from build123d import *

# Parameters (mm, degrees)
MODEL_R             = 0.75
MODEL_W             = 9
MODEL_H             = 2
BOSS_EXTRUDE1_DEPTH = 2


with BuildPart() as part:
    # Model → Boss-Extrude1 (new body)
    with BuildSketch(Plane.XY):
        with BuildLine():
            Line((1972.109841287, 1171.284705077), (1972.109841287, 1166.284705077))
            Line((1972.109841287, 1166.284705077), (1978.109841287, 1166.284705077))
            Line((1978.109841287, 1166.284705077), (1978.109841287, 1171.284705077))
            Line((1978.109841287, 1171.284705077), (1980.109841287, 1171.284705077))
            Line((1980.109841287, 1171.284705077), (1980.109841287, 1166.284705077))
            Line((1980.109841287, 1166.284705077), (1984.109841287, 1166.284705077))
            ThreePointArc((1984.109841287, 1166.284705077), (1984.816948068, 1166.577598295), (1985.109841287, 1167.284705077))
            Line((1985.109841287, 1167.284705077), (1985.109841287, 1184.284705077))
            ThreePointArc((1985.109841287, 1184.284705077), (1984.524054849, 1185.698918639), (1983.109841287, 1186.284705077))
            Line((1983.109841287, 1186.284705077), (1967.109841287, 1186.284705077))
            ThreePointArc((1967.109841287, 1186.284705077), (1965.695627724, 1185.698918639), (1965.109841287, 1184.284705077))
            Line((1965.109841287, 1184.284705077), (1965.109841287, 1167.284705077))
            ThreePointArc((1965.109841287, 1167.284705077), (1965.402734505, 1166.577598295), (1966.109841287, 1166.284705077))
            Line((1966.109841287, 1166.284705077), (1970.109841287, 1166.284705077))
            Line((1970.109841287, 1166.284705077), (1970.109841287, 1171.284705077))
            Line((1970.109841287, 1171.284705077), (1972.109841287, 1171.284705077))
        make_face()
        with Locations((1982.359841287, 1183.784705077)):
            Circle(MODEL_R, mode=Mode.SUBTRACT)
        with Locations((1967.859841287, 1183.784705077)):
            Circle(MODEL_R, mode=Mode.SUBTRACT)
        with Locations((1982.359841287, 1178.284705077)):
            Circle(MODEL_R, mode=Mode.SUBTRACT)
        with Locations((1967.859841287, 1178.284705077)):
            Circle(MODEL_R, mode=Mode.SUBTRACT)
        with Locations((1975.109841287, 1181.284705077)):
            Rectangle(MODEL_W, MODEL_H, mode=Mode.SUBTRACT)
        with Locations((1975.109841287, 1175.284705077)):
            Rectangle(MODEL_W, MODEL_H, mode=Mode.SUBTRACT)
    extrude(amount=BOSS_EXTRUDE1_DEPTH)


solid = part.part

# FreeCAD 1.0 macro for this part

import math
import FreeCAD as App
import Part
import Sketcher

V = App.Vector
Q = App.Units.Quantity


def add_polygon(sketch, points):
    """Adds a closed chain of lines whose ends are joined by coincident constraints."""
    first, n = sketch.GeometryCount, len(points)
    for a, b in zip(points, points[1:] + points[:1]):
        sketch.addGeometry(Part.LineSegment(App.Vector(*a, 0), App.Vector(*b, 0)), False)
    for i in range(n):
        sketch.addConstraint(Sketcher.Constraint("Coincident", first + i, 2, first + (i + 1) % n, 1))

doc = App.newDocument("Part")
params = doc.addObject("Spreadsheet::Sheet", "Params")
for row, (alias, value) in enumerate([
    ("sketch1_radius", "1 mm"),
    ("sketch1_radius2", "2 mm"),
    ("sketch1_diameter", "1.5 mm"),
    ("sketch1_width", "6 mm"),
    ("sketch1_width2", "2 mm"),
    ("pad1_length", "2 mm"),
], start=1):
    params.set(f"A{row}", alias)
    params.set(f"B{row}", "=" + value)
    params.setAlias(f"B{row}", alias)

body = doc.addObject("PartDesign::Body", "Body")

sketch1 = body.newObject("Sketcher::SketchObject", "Sketch")
sketch1.AttachmentSupport = (doc.getObject("XY_Plane"), [""])
sketch1.MapMode = "FlatFace"
sketch1.addGeometry(Part.LineSegment(V(1972.1, 1171.3, 0), V(1972.1, 1166.3, 0)), False)
sketch1.addGeometry(Part.LineSegment(V(1972.1, 1166.3, 0), V(1978.1, 1166.3, 0)), False)
sketch1.addGeometry(Part.LineSegment(V(1978.1, 1166.3, 0), V(1978.1, 1171.3, 0)), False)
sketch1.addGeometry(Part.LineSegment(V(1978.1, 1171.3, 0), V(1980.1, 1171.3, 0)), False)
sketch1.addGeometry(Part.LineSegment(V(1980.1, 1171.3, 0), V(1980.1, 1166.3, 0)), False)
sketch1.addGeometry(Part.LineSegment(V(1980.1, 1166.3, 0), V(1984.1, 1166.3, 0)), False)
sketch1.addGeometry(Part.ArcOfCircle(Part.Circle(V(1984.1, 1167.3, 0), V(0, 0, 1), 1), math.radians(-90), math.radians(0)), False)
sketch1.addGeometry(Part.LineSegment(V(1985.1, 1167.3, 0), V(1985.1, 1184.3, 0)), False)
sketch1.addGeometry(Part.ArcOfCircle(Part.Circle(V(1983.1, 1184.3, 0), V(0, 0, 1), 2), math.radians(0), math.radians(90)), False)
sketch1.addGeometry(Part.LineSegment(V(1983.1, 1186.3, 0), V(1967.1, 1186.3, 0)), False)
sketch1.addGeometry(Part.ArcOfCircle(Part.Circle(V(1967.1, 1184.3, 0), V(0, 0, 1), 2), math.radians(90), math.radians(180)), False)
sketch1.addGeometry(Part.LineSegment(V(1965.1, 1184.3, 0), V(1965.1, 1167.3, 0)), False)
sketch1.addGeometry(Part.ArcOfCircle(Part.Circle(V(1966.1, 1167.3, 0), V(0, 0, 1), 1), math.radians(180), math.radians(270)), False)
sketch1.addGeometry(Part.LineSegment(V(1966.1, 1166.3, 0), V(1970.1, 1166.3, 0)), False)
sketch1.addGeometry(Part.LineSegment(V(1970.1, 1166.3, 0), V(1970.1, 1171.3, 0)), False)
sketch1.addGeometry(Part.LineSegment(V(1970.1, 1171.3, 0), V(1972.1, 1171.3, 0)), False)
sketch1.addGeometry(Part.Circle(V(1967.9, 1178.3, 0), V(0, 0, 1), 0.8), False)
add_polygon(sketch1, [(1979.6, 1174.3), (1970.6, 1174.3), (1970.6, 1176.3), (1979.6, 1176.3)])
sketch1.addGeometry(Part.Circle(V(1982.4, 1178.3, 0), V(0, 0, 1), 0.8), False)
sketch1.addGeometry(Part.Circle(V(1967.9, 1183.8, 0), V(0, 0, 1), 0.8), False)
add_polygon(sketch1, [(1979.6, 1180.3), (1970.6, 1180.3), (1970.6, 1182.3), (1979.6, 1182.3)])
sketch1.addGeometry(Part.Circle(V(1982.4, 1183.8, 0), V(0, 0, 1), 0.8), False)
sketch1.addConstraint(Sketcher.Constraint("Coincident", 0, 2, 1, 1))
sketch1.addConstraint(Sketcher.Constraint("Coincident", 1, 2, 2, 1))
sketch1.addConstraint(Sketcher.Constraint("Coincident", 2, 2, 3, 1))
sketch1.addConstraint(Sketcher.Constraint("Coincident", 3, 2, 4, 1))
sketch1.addConstraint(Sketcher.Constraint("Coincident", 4, 2, 5, 1))
sketch1.addConstraint(Sketcher.Constraint("Tangent", 5, 2, 6, 1))
sketch1.addConstraint(Sketcher.Constraint("Tangent", 6, 2, 7, 1))
sketch1.addConstraint(Sketcher.Constraint("Tangent", 7, 2, 8, 1))
sketch1.addConstraint(Sketcher.Constraint("Tangent", 8, 2, 9, 1))
sketch1.addConstraint(Sketcher.Constraint("Tangent", 9, 2, 10, 1))
sketch1.addConstraint(Sketcher.Constraint("Tangent", 10, 2, 11, 1))
sketch1.addConstraint(Sketcher.Constraint("Tangent", 11, 2, 12, 1))
sketch1.addConstraint(Sketcher.Constraint("Tangent", 12, 2, 13, 1))
sketch1.addConstraint(Sketcher.Constraint("Coincident", 13, 2, 14, 1))
sketch1.addConstraint(Sketcher.Constraint("Coincident", 14, 2, 15, 1))
sketch1.addConstraint(Sketcher.Constraint("Coincident", 15, 2, 0, 1))
sketch1.addConstraint(Sketcher.Constraint("Vertical", 0))
sketch1.addConstraint(Sketcher.Constraint("Horizontal", 1))
sketch1.addConstraint(Sketcher.Constraint("Vertical", 2))
sketch1.addConstraint(Sketcher.Constraint("Horizontal", 3))
sketch1.addConstraint(Sketcher.Constraint("Vertical", 4))
sketch1.addConstraint(Sketcher.Constraint("Horizontal", 5))
sketch1.addConstraint(Sketcher.Constraint("Vertical", 7))
sketch1.addConstraint(Sketcher.Constraint("Horizontal", 9))
sketch1.addConstraint(Sketcher.Constraint("Vertical", 11))
sketch1.addConstraint(Sketcher.Constraint("Horizontal", 13))
sketch1.addConstraint(Sketcher.Constraint("Vertical", 14))
sketch1.addConstraint(Sketcher.Constraint("Horizontal", 15))
sketch1.addConstraint(Sketcher.Constraint("Horizontal", 17))
sketch1.addConstraint(Sketcher.Constraint("Vertical", 18))
sketch1.addConstraint(Sketcher.Constraint("Horizontal", 19))
sketch1.addConstraint(Sketcher.Constraint("Vertical", 20))
sketch1.addConstraint(Sketcher.Constraint("Horizontal", 23))
sketch1.addConstraint(Sketcher.Constraint("Vertical", 24))
sketch1.addConstraint(Sketcher.Constraint("Horizontal", 25))
sketch1.addConstraint(Sketcher.Constraint("Vertical", 26))
sketch1.addConstraint(Sketcher.Constraint("Equal", 8, 10))
sketch1.addConstraint(Sketcher.Constraint("Equal", 6, 12))
sketch1.addConstraint(Sketcher.Constraint("Equal", 16, 21))
sketch1.addConstraint(Sketcher.Constraint("Equal", 21, 22))
sketch1.addConstraint(Sketcher.Constraint("Equal", 22, 27))
sketch1.addConstraint(Sketcher.Constraint("Horizontal", 6, 3, 12, 3))
sketch1.addConstraint(Sketcher.Constraint("Horizontal", 16, 3, 21, 3))
sketch1.addConstraint(Sketcher.Constraint("Horizontal", 22, 3, 27, 3))
sketch1.addConstraint(Sketcher.Constraint("Horizontal", 1, 2, 4, 2))
sketch1.addConstraint(Sketcher.Constraint("Horizontal", 3, 2, 14, 2))
sketch1.addConstraint(Sketcher.Constraint("Vertical", 16, 3, 22, 3))
sketch1.addConstraint(Sketcher.Constraint("Vertical", 21, 3, 27, 3))
sketch1.addConstraint(Sketcher.Constraint("Vertical", 18, 2, 23, 2))
sketch1.addConstraint(Sketcher.Constraint("Vertical", 20, 2, 25, 2))
sketch1.addConstraint(Sketcher.Constraint("Equal", 5, 13))
sketch1.addConstraint(Sketcher.Constraint("Equal", 3, 15))
sketch1.addConstraint(Sketcher.Constraint("Equal", 15, 18))
sketch1.addConstraint(Sketcher.Constraint("Equal", 20, 24))
sketch1.addConstraint(Sketcher.Constraint("Radius", 6, Q("1 mm")))
sketch1.addConstraint(Sketcher.Constraint("Radius", 8, Q("2 mm")))
sketch1.addConstraint(Sketcher.Constraint("Diameter", 16, Q("1.5 mm")))
sketch1.addConstraint(Sketcher.Constraint("DistanceX", 1, 1, 1, 2, Q("6 mm")))
sketch1.addConstraint(Sketcher.Constraint("DistanceX", 3, 1, 3, 2, Q("2 mm")))
sketch1.addConstraint(Sketcher.Constraint("DistanceX", 5, 1, 5, 2, Q("4 mm")))
sketch1.addConstraint(Sketcher.Constraint("DistanceX", 17, 2, 17, 1, Q("9 mm")))
sketch1.addConstraint(Sketcher.Constraint("DistanceY", 0, 2, 0, 1, Q("5 mm")))
sketch1.addConstraint(Sketcher.Constraint("DistanceY", 7, 1, 7, 2, Q("17 mm")))
sketch1.addConstraint(Sketcher.Constraint("DistanceY", 16, 3, 10, 3, Q("6 mm")))
sketch1.addConstraint(Sketcher.Constraint("DistanceY", 14, 2, 17, 2, Q("3 mm")))
sketch1.addConstraint(Sketcher.Constraint("DistanceY", 16, 3, 23, 2, Q("2 mm")))
sketch1.addConstraint(Sketcher.Constraint("DistanceX", 16, 3, 21, 3, Q("14.5 mm")))
sketch1.addConstraint(Sketcher.Constraint("DistanceY", 22, 3, 10, 3, Q("0.5 mm")))
sketch1.addConstraint(Sketcher.Constraint("DistanceX", 14, 2, 17, 2, Q("0.5 mm")))
sketch1.addConstraint(Sketcher.Constraint("DistanceX", 10, 3, 16, 3, Q("0.75 mm")))
sketch1.addConstraint(Sketcher.Constraint("DistanceX", -1, 1, 6, 3, Q("1984.109841 mm")))
sketch1.addConstraint(Sketcher.Constraint("DistanceY", -1, 1, 6, 3, Q("1167.284705 mm")))
sketch1.setExpression("Constraints[62]", "Params.sketch1_radius")
sketch1.setExpression("Constraints[63]", "Params.sketch1_radius2")
sketch1.setExpression("Constraints[64]", "Params.sketch1_diameter")
sketch1.setExpression("Constraints[65]", "Params.sketch1_width")
sketch1.setExpression("Constraints[66]", "Params.sketch1_width2")
pad1 = body.newObject("PartDesign::Pad", "Pad")
pad1.Profile = sketch1
pad1.setExpression("Length", "Params.pad1_length")

doc.recompute()
